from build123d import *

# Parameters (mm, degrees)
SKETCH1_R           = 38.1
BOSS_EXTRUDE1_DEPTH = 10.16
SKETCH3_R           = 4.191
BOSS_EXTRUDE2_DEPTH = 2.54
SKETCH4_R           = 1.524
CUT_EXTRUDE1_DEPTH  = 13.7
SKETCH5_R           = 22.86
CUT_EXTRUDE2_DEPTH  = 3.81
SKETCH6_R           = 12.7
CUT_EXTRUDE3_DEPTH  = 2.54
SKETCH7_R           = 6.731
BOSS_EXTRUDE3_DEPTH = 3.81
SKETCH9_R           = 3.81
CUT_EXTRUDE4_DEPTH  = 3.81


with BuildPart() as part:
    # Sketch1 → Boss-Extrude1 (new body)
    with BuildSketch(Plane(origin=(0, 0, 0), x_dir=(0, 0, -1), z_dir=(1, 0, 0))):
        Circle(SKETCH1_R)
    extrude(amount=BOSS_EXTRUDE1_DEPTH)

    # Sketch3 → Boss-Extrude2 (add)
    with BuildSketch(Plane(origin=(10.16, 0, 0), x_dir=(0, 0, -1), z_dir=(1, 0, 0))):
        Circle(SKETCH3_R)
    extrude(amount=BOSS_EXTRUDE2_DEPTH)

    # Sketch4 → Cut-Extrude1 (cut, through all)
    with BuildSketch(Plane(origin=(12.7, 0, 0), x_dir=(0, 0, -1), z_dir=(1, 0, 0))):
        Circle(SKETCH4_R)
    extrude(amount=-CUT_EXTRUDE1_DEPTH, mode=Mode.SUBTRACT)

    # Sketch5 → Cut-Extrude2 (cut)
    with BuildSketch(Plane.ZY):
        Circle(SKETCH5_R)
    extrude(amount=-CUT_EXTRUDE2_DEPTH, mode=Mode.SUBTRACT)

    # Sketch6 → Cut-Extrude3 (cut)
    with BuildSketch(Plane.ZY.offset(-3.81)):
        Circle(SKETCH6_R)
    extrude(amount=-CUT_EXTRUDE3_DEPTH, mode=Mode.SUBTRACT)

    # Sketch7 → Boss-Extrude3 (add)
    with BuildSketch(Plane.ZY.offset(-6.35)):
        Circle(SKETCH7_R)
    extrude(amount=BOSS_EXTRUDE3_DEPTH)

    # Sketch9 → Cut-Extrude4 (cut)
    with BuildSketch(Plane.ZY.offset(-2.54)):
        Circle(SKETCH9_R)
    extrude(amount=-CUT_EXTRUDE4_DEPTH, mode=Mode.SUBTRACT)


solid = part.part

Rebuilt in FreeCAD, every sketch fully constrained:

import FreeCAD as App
import Part
import Sketcher
Q = App.Units.Quantity

doc = App.newDocument("Part")
body = doc.addObject("PartDesign::Body", "Body")

# Sketch on YZ plane
sketch1 = body.newObject("Sketcher::SketchObject", "Sketch")
sketch1.AttachmentSupport = (doc.getObject("YZ_Plane"), [""])
sketch1.MapMode = "FlatFace"
sketch1.addGeometry(Part.Circle(App.Vector(0, 0, 0), App.Vector(0, 0, 1), 38.1), False)
sketch1.addConstraint([
    Sketcher.Constraint("Coincident", 0, 3, -1, 1),
    Sketcher.Constraint("Diameter", 0, Q("3 in")),
])
pad1 = body.newObject("PartDesign::Pad", "Pad")
pad1.Profile = sketch1
pad1.Length = Q("0.4 in")

# Sketch on YZ plane
sketch2 = body.newObject("Sketcher::SketchObject", "Sketch001")
sketch2.AttachmentSupport = (doc.getObject("YZ_Plane"), [""])
sketch2.MapMode = "FlatFace"
sketch2.AttachmentOffset = App.Placement(App.Vector(0, 0, 0.4 * 25.4), App.Rotation())
sketch2.addGeometry(Part.Circle(App.Vector(0, 0, 0), App.Vector(0, 0, 1), 4.191), False)
sketch2.addConstraint([
    Sketcher.Constraint("Coincident", 0, 3, -1, 1),
    Sketcher.Constraint("Diameter", 0, Q("0.33 in")),
])
pad2 = body.newObject("PartDesign::Pad", "Pad001")
pad2.Profile = sketch2
pad2.Length = Q("0.1 in")

# Sketch on YZ plane
sketch3 = body.newObject("Sketcher::SketchObject", "Sketch002")
sketch3.AttachmentSupport = (doc.getObject("YZ_Plane"), [""])
sketch3.MapMode = "FlatFace"
sketch3.AttachmentOffset = App.Placement(App.Vector(0, 0, 0.5 * 25.4), App.Rotation())
sketch3.addGeometry(Part.Circle(App.Vector(0, 0, 0), App.Vector(0, 0, 1), 1.524), False)
sketch3.addConstraint([
    Sketcher.Constraint("Coincident", 0, 3, -1, 1),
    Sketcher.Constraint("Diameter", 0, Q("0.12 in")),
])
pocket1 = body.newObject("PartDesign::Pocket", "Pocket")
pocket1.Profile = sketch3
pocket1.Type = "ThroughAll"

# Sketch on YZ plane
sketch4 = body.newObject("Sketcher::SketchObject", "Sketch003")
sketch4.AttachmentSupport = (doc.getObject("YZ_Plane"), [""])
sketch4.MapMode = "FlatFace"
sketch4.addGeometry(Part.Circle(App.Vector(0, 0, 0), App.Vector(0, 0, 1), 22.86), False)
sketch4.addConstraint([
    Sketcher.Constraint("Coincident", 0, 3, -1, 1),
    Sketcher.Constraint("Diameter", 0, Q("1.8 in")),
])
pocket2 = body.newObject("PartDesign::Pocket", "Pocket001")
pocket2.Profile = sketch4
pocket2.Length = Q("0.15 in")
pocket2.Reversed = True

# Sketch on YZ plane
sketch5 = body.newObject("Sketcher::SketchObject", "Sketch004")
sketch5.AttachmentSupport = (doc.getObject("YZ_Plane"), [""])
sketch5.MapMode = "FlatFace"
sketch5.AttachmentOffset = App.Placement(App.Vector(0, 0, 0.15 * 25.4), App.Rotation())
sketch5.addGeometry(Part.Circle(App.Vector(0, 0, 0), App.Vector(0, 0, 1), 12.7), False)
sketch5.addConstraint([
    Sketcher.Constraint("Coincident", 0, 3, -1, 1),
    Sketcher.Constraint("Diameter", 0, Q("1 in")),
])
pocket3 = body.newObject("PartDesign::Pocket", "Pocket002")
pocket3.Profile = sketch5
pocket3.Length = Q("0.1 in")
pocket3.Reversed = True

# Sketch on YZ plane
sketch6 = body.newObject("Sketcher::SketchObject", "Sketch005")
sketch6.AttachmentSupport = (doc.getObject("YZ_Plane"), [""])
sketch6.MapMode = "FlatFace"
sketch6.AttachmentOffset = App.Placement(App.Vector(0, 0, 0.25 * 25.4), App.Rotation())
sketch6.addGeometry(Part.Circle(App.Vector(0, 0, 0), App.Vector(0, 0, 1), 6.731), False)
sketch6.addConstraint([
    Sketcher.Constraint("Coincident", 0, 3, -1, 1),
    Sketcher.Constraint("Diameter", 0, Q("0.53 in")),
])
pad3 = body.newObject("PartDesign::Pad", "Pad002")
pad3.Profile = sketch6
pad3.Length = Q("0.15 in")
pad3.Reversed = True

# Sketch on YZ plane
sketch7 = body.newObject("Sketcher::SketchObject", "Sketch006")
sketch7.AttachmentSupport = (doc.getObject("YZ_Plane"), [""])
sketch7.MapMode = "FlatFace"
sketch7.AttachmentOffset = App.Placement(App.Vector(0, 0, 0.1 * 25.4), App.Rotation())
sketch7.addGeometry(Part.Circle(App.Vector(0, 0, 0), App.Vector(0, 0, 1), 3.81), False)
sketch7.addConstraint([
    Sketcher.Constraint("Coincident", 0, 3, -1, 1),
    Sketcher.Constraint("Diameter", 0, Q("0.3 in")),
])
pocket4 = body.newObject("PartDesign::Pocket", "Pocket003")
pocket4.Profile = sketch7
pocket4.Length = Q("0.15 in")
pocket4.Reversed = True

doc.recompute()
